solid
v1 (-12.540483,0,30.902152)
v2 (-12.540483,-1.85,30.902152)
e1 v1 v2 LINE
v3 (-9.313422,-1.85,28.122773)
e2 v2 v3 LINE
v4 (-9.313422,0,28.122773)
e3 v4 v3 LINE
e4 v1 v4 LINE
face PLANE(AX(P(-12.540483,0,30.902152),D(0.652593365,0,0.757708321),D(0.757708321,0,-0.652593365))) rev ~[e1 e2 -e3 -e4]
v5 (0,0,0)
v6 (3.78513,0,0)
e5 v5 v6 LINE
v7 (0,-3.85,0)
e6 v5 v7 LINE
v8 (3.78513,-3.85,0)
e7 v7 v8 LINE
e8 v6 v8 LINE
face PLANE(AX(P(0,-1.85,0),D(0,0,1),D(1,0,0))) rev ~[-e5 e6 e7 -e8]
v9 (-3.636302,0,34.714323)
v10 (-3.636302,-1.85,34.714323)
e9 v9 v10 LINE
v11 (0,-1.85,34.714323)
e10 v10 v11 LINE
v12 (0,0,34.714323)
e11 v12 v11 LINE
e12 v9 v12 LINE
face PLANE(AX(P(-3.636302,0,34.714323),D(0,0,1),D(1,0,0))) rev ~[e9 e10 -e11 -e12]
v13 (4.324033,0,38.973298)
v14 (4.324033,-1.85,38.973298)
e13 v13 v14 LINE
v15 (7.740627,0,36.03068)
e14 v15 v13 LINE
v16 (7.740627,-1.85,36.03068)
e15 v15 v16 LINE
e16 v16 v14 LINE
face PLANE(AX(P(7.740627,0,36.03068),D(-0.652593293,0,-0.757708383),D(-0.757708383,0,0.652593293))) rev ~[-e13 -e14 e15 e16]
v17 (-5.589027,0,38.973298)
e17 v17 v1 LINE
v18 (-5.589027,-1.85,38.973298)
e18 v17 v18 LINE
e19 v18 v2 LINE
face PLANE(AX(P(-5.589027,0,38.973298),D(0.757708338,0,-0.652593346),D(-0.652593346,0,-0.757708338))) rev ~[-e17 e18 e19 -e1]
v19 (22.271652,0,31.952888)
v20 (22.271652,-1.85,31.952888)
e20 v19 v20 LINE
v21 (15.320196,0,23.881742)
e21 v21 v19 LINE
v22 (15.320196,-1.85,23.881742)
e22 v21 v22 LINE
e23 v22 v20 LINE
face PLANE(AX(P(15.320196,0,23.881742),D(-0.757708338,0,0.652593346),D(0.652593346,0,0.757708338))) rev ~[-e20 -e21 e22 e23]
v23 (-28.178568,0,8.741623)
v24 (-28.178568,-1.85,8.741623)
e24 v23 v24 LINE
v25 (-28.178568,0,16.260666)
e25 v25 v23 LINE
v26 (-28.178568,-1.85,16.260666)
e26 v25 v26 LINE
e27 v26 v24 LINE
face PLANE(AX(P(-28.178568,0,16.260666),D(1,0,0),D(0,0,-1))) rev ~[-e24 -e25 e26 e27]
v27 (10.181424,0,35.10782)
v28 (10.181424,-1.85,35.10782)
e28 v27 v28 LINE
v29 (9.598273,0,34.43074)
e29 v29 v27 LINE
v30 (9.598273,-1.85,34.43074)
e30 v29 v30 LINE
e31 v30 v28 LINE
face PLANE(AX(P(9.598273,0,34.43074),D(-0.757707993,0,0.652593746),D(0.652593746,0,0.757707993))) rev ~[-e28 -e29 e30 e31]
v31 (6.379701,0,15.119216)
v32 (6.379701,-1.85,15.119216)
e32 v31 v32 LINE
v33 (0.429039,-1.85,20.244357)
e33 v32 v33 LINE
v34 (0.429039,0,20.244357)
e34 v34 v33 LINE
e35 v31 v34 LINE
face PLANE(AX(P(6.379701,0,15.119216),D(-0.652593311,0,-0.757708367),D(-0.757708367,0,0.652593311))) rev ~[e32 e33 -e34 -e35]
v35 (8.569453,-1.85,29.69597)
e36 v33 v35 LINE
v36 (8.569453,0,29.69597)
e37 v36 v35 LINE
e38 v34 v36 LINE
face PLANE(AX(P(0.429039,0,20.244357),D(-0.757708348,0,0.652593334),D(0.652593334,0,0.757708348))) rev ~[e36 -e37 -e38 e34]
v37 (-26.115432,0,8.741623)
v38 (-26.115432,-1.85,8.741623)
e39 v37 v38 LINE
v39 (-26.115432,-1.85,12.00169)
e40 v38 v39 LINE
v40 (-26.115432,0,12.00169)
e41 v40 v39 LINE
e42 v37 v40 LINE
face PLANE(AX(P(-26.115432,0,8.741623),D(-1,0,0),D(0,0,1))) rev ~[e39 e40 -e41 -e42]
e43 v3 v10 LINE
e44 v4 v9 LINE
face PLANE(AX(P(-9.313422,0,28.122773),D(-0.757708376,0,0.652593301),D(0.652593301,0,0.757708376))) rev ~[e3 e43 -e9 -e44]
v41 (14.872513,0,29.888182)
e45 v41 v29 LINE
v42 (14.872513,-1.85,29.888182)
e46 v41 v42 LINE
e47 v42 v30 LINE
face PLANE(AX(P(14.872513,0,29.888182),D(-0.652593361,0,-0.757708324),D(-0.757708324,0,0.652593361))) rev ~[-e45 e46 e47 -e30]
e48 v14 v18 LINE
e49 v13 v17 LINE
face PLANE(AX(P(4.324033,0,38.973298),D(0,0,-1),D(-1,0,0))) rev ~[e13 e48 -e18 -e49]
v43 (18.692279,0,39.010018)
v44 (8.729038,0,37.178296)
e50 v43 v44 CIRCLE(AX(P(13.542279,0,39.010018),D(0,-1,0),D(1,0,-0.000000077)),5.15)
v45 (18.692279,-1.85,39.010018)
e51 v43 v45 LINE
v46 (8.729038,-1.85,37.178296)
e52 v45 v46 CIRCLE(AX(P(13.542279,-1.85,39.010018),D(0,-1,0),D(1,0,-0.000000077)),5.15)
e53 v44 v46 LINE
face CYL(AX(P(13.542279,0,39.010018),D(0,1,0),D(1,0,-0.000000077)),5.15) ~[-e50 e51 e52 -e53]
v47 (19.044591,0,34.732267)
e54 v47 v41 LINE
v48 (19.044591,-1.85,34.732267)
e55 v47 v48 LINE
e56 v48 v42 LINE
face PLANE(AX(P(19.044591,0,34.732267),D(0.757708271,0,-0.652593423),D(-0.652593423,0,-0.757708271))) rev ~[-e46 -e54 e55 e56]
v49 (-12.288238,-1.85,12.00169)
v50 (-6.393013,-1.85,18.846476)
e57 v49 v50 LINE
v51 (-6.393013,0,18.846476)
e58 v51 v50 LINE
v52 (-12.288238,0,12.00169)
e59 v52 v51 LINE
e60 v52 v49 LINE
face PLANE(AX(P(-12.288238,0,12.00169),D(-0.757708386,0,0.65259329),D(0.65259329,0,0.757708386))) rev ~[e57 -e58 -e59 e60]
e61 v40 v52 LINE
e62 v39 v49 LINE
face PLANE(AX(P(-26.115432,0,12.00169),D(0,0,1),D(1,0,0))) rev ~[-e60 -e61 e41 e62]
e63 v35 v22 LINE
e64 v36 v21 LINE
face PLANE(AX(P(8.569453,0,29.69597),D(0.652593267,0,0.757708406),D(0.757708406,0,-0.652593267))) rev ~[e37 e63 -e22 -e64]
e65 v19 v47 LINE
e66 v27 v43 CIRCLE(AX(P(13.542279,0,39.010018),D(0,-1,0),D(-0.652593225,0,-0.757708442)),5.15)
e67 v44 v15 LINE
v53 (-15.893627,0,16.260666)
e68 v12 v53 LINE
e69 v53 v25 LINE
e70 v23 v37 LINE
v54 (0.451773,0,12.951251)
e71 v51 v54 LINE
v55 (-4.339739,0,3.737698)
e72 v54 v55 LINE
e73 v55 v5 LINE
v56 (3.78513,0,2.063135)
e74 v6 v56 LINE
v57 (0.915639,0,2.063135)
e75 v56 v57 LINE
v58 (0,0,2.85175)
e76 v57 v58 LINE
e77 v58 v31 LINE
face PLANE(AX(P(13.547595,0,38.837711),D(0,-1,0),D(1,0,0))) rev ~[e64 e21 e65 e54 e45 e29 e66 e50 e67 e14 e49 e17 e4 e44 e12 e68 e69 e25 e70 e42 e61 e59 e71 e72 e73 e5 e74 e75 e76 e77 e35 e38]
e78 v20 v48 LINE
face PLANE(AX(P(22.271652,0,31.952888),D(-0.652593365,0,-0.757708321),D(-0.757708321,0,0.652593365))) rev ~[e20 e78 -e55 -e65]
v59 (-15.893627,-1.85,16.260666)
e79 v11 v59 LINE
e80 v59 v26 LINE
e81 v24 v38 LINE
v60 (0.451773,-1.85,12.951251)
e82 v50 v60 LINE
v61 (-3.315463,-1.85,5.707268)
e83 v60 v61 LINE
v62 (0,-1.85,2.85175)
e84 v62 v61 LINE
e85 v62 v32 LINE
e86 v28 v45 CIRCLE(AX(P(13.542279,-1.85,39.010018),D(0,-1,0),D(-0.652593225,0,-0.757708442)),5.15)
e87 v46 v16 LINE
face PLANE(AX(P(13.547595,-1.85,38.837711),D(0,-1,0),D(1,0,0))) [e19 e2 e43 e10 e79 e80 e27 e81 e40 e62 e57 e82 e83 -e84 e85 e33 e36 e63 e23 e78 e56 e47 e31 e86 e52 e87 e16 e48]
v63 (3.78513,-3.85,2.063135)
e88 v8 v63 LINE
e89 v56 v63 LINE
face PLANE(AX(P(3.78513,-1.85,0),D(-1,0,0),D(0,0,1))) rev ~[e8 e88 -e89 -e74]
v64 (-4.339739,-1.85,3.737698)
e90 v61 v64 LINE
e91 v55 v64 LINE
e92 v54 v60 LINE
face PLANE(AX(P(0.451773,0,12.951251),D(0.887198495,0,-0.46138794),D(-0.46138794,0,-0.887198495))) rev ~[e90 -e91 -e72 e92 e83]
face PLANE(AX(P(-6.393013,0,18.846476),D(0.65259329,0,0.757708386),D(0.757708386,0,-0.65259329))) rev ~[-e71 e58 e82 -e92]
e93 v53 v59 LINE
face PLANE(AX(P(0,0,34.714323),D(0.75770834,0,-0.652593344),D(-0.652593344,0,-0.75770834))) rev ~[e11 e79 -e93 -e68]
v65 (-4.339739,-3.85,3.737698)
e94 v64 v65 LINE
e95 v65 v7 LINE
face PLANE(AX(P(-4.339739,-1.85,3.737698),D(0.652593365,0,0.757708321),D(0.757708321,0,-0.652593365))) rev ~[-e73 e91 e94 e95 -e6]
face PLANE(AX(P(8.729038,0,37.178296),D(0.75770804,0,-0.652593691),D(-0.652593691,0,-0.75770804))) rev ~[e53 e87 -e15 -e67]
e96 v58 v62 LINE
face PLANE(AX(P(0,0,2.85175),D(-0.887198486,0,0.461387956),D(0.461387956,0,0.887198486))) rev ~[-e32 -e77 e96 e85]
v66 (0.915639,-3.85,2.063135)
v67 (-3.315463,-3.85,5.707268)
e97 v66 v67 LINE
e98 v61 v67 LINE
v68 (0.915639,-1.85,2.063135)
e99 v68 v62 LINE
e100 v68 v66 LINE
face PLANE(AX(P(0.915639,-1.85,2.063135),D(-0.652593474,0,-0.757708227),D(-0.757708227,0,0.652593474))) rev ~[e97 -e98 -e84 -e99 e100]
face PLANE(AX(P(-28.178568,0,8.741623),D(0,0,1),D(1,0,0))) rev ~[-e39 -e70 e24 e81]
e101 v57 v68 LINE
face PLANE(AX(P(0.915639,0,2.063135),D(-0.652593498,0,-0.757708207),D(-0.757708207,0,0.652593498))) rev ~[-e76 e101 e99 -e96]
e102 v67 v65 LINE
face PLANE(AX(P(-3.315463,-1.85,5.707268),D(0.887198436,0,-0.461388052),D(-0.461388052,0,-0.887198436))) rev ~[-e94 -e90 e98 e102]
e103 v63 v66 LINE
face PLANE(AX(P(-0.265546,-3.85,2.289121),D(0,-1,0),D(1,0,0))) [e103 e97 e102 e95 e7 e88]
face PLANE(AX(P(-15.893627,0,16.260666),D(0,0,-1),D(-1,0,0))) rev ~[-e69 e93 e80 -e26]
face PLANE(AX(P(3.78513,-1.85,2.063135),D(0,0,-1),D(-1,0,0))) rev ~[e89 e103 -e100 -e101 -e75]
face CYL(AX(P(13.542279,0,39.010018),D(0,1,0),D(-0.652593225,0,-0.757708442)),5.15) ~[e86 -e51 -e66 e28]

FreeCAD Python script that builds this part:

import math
import FreeCAD as App
import Part
import Sketcher

V = App.Vector


def add_polygon(sketch, points):
    """Adds a closed chain of lines whose ends are joined by coincident constraints."""
    first, n = sketch.GeometryCount, len(points)
    for a, b in zip(points, points[1:] + points[:1]):
        sketch.addGeometry(Part.LineSegment(App.Vector(*a, 0), App.Vector(*b, 0)), False)
    for i in range(n):
        sketch.addConstraint(Sketcher.Constraint("Coincident", first + i, 2, first + (i + 1) % n, 1))

doc = App.newDocument("Part")
body = doc.addObject("PartDesign::Body", "Body")

# Sketch on XZ plane
sketch1 = doc.addObject("Sketcher::SketchObject", "Sketch")
body.addObject(sketch1)
sketch1.AttachmentSupport = (doc.XZ_Plane, [""])
sketch1.MapMode = "FlatFace"
sketch1.addGeometry(Part.ArcOfCircle(Part.Circle(V(13.5, 39, 0), V(0, 0, 1), 5.1), math.radians(-131), math.radians(0)), False)
sketch1.addGeometry(Part.ArcOfCircle(Part.Circle(V(13.5, 39, 0), V(0, 0, 1), 5.1), math.radians(0), math.radians(201)), False)
sketch1.addGeometry(Part.LineSegment(V(8.7, 37.2, 0), V(7.7, 36, 0)), False)
sketch1.addGeometry(Part.LineSegment(V(7.7, 36, 0), V(4.3, 39, 0)), False)
sketch1.addGeometry(Part.LineSegment(V(4.3, 39, 0), V(-5.6, 39, 0)), False)
sketch1.addGeometry(Part.LineSegment(V(-5.6, 39, 0), V(-12.5, 30.9, 0)), False)
sketch1.addGeometry(Part.LineSegment(V(-12.5, 30.9, 0), V(-9.3, 28.1, 0)), False)
sketch1.addGeometry(Part.LineSegment(V(-9.3, 28.1, 0), V(-3.6, 34.7, 0)), False)
sketch1.addGeometry(Part.LineSegment(V(-3.6, 34.7, 0), V(0, 34.7, 0)), False)
sketch1.addGeometry(Part.LineSegment(V(0, 34.7, 0), V(-15.9, 16.3, 0)), False)
sketch1.addGeometry(Part.LineSegment(V(-15.9, 16.3, 0), V(-28.2, 16.3, 0)), False)
sketch1.addGeometry(Part.LineSegment(V(-28.2, 16.3, 0), V(-28.2, 8.7, 0)), False)
sketch1.addGeometry(Part.LineSegment(V(-28.2, 8.7, 0), V(-26.1, 8.7, 0)), False)
sketch1.addGeometry(Part.LineSegment(V(-26.1, 8.7, 0), V(-26.1, 12, 0)), False)
sketch1.addGeometry(Part.LineSegment(V(-26.1, 12, 0), V(-12.3, 12, 0)), False)
sketch1.addGeometry(Part.LineSegment(V(-12.3, 12, 0), V(-6.4, 18.8, 0)), False)
sketch1.addGeometry(Part.LineSegment(V(-6.4, 18.8, 0), V(0.5, 13, 0)), False)
sketch1.addGeometry(Part.LineSegment(V(0.5, 13, 0), V(-4.3, 3.7, 0)), False)
sketch1.addGeometry(Part.LineSegment(V(-4.3, 3.7, 0), V(0, 0, 0)), False)
sketch1.addGeometry(Part.LineSegment(V(0, 0, 0), V(3.8, 0, 0)), False)
sketch1.addGeometry(Part.LineSegment(V(3.8, 0, 0), V(3.8, 2.1, 0)), False)
sketch1.addGeometry(Part.LineSegment(V(3.8, 2.1, 0), V(0.9, 2.1, 0)), False)
sketch1.addGeometry(Part.LineSegment(V(0.9, 2.1, 0), V(0, 2.9, 0)), False)
sketch1.addGeometry(Part.LineSegment(V(0, 2.9, 0), V(6.4, 15.1, 0)), False)
sketch1.addGeometry(Part.LineSegment(V(6.4, 15.1, 0), V(0.4, 20.2, 0)), False)
sketch1.addGeometry(Part.LineSegment(V(0.4, 20.2, 0), V(8.6, 29.7, 0)), False)
sketch1.addGeometry(Part.LineSegment(V(8.6, 29.7, 0), V(15.3, 23.9, 0)), False)
sketch1.addGeometry(Part.LineSegment(V(15.3, 23.9, 0), V(22.3, 32, 0)), False)
sketch1.addGeometry(Part.LineSegment(V(22.3, 32, 0), V(19, 34.7, 0)), False)
sketch1.addGeometry(Part.LineSegment(V(19, 34.7, 0), V(14.9, 29.9, 0)), False)
sketch1.addGeometry(Part.LineSegment(V(14.9, 29.9, 0), V(9.6, 34.4, 0)), False)
sketch1.addGeometry(Part.LineSegment(V(9.6, 34.4, 0), V(10.2, 35.1, 0)), False)
sketch1.addConstraint(Sketcher.Constraint("Tangent", 0, 2, 1, 1))
sketch1.addConstraint(Sketcher.Constraint("Coincident", 1, 2, 2, 1))
sketch1.addConstraint(Sketcher.Constraint("Coincident", 2, 2, 3, 1))
sketch1.addConstraint(Sketcher.Constraint("Coincident", 3, 2, 4, 1))
sketch1.addConstraint(Sketcher.Constraint("Coincident", 4, 2, 5, 1))
sketch1.addConstraint(Sketcher.Constraint("Coincident", 5, 2, 6, 1))
sketch1.addConstraint(Sketcher.Constraint("Coincident", 6, 2, 7, 1))
sketch1.addConstraint(Sketcher.Constraint("Coincident", 7, 2, 8, 1))
sketch1.addConstraint(Sketcher.Constraint("Coincident", 8, 2, 9, 1))
sketch1.addConstraint(Sketcher.Constraint("Coincident", 9, 2, 10, 1))
sketch1.addConstraint(Sketcher.Constraint("Coincident", 10, 2, 11, 1))
sketch1.addConstraint(Sketcher.Constraint("Coincident", 11, 2, 12, 1))
sketch1.addConstraint(Sketcher.Constraint("Coincident", 12, 2, 13, 1))
sketch1.addConstraint(Sketcher.Constraint("Coincident", 13, 2, 14, 1))
sketch1.addConstraint(Sketcher.Constraint("Coincident", 14, 2, 15, 1))
sketch1.addConstraint(Sketcher.Constraint("Coincident", 15, 2, 16, 1))
sketch1.addConstraint(Sketcher.Constraint("Coincident", 16, 2, 17, 1))
sketch1.addConstraint(Sketcher.Constraint("Coincident", 17, 2, 18, 1))
sketch1.addConstraint(Sketcher.Constraint("Coincident", 18, 2, 19, 1))
sketch1.addConstraint(Sketcher.Constraint("Coincident", 19, 2, 20, 1))
sketch1.addConstraint(Sketcher.Constraint("Coincident", 20, 2, 21, 1))
sketch1.addConstraint(Sketcher.Constraint("Coincident", 21, 2, 22, 1))
sketch1.addConstraint(Sketcher.Constraint("Coincident", 22, 2, 23, 1))
sketch1.addConstraint(Sketcher.Constraint("Coincident", 23, 2, 24, 1))
sketch1.addConstraint(Sketcher.Constraint("Coincident", 24, 2, 25, 1))
sketch1.addConstraint(Sketcher.Constraint("Coincident", 25, 2, 26, 1))
sketch1.addConstraint(Sketcher.Constraint("Coincident", 26, 2, 27, 1))
sketch1.addConstraint(Sketcher.Constraint("Coincident", 27, 2, 28, 1))
sketch1.addConstraint(Sketcher.Constraint("Coincident", 28, 2, 29, 1))
sketch1.addConstraint(Sketcher.Constraint("Coincident", 29, 2, 30, 1))
sketch1.addConstraint(Sketcher.Constraint("Coincident", 30, 2, 31, 1))
sketch1.addConstraint(Sketcher.Constraint("Coincident", 31, 2, 0, 1))
sketch1.addConstraint(Sketcher.Constraint("Horizontal", 4))
sketch1.addConstraint(Sketcher.Constraint("Horizontal", 8))
sketch1.addConstraint(Sketcher.Constraint("Horizontal", 10))
sketch1.addConstraint(Sketcher.Constraint("Vertical", 11))
sketch1.addConstraint(Sketcher.Constraint("Horizontal", 12))
sketch1.addConstraint(Sketcher.Constraint("Vertical", 13))
sketch1.addConstraint(Sketcher.Constraint("Horizontal", 14))
sketch1.addConstraint(Sketcher.Constraint("Horizontal", 19))
sketch1.addConstraint(Sketcher.Constraint("Vertical", 20))
sketch1.addConstraint(Sketcher.Constraint("Horizontal", 21))
sketch1.addConstraint(Sketcher.Constraint("Coincident", 18, 2, -1, 1))
sketch1.addConstraint(Sketcher.Constraint("Equal", 0, 1))
sketch1.addConstraint(Sketcher.Constraint("PointOnObject", 8, 2, -2))
sketch1.addConstraint(Sketcher.Constraint("PointOnObject", 22, 2, -2))
sketch1.addConstraint(Sketcher.Constraint("Perpendicular", 2, 3))
sketch1.addConstraint(Sketcher.Constraint("Perpendicular", 3, 5))
sketch1.addConstraint(Sketcher.Constraint("Perpendicular", 5, 6))
sketch1.addConstraint(Sketcher.Constraint("Perpendicular", 6, 7))
sketch1.addConstraint(Sketcher.Constraint("Parallel", 7, 9))
sketch1.addConstraint(Sketcher.Constraint("Parallel", 9, 15))
sketch1.addConstraint(Sketcher.Constraint("Perpendicular", 15, 16))
sketch1.addConstraint(Sketcher.Constraint("Parallel", 16, 18))
sketch1.addConstraint(Sketcher.Constraint("Parallel", 18, 22))
sketch1.addConstraint(Sketcher.Constraint("Parallel", 17, 23))
sketch1.addConstraint(Sketcher.Constraint("Parallel", 22, 24))
sketch1.addConstraint(Sketcher.Constraint("Perpendicular", 24, 25))
sketch1.addConstraint(Sketcher.Constraint("Perpendicular", 25, 26))
sketch1.addConstraint(Sketcher.Constraint("Perpendicular", 26, 27))
sketch1.addConstraint(Sketcher.Constraint("Perpendicular", 27, 28))
sketch1.addConstraint(Sketcher.Constraint("Perpendicular", 28, 29))
sketch1.addConstraint(Sketcher.Constraint("Perpendicular", 29, 30))
sketch1.addConstraint(Sketcher.Constraint("Perpendicular", 30, 31))
sketch1.addConstraint(Sketcher.Constraint("Horizontal", 1, 3, 0, 2))
sketch1.addConstraint(Sketcher.Constraint("Equal", 12, 20))
sketch1.addConstraint(Sketcher.Constraint("Equal", 15, 16))
sketch1.addConstraint(Sketcher.Constraint("Equal", 5, 27))
sketch1.addConstraint(Sketcher.Constraint("Equal", 6, 28))
sketch1.addConstraint(Sketcher.Constraint("Radius", 0, 5.15))
sketch1.addConstraint(Sketcher.Constraint("Distance", 24, 7.853499))
sketch1.addConstraint(Sketcher.Constraint("DistanceX", 4, 2, 4, 1, 9.91306))
sketch1.addConstraint(Sketcher.Constraint("DistanceX", 10, 2, 10, 1, 12.284941))
sketch1.addConstraint(Sketcher.Constraint("DistanceX", 19, 1, 19, 2, 3.78513))
sketch1.addConstraint(Sketcher.Constraint("DistanceX", 21, 2, 21, 1, 2.869491))
sketch1.addConstraint(Sketcher.Constraint("DistanceY", -1, 1, 17, 2, 3.737698))
sketch1.addConstraint(Sketcher.Constraint("DistanceX", -1, 1, 23, 2, 6.379701))
sketch1.addConstraint(Sketcher.Constraint("DistanceX", 9, 2, 4, 2, 10.3046))
sketch1.addConstraint(Sketcher.Constraint("DistanceY", 11, 2, 7, 2, 25.9727))
sketch1.addConstraint(Sketcher.Constraint("DistanceX", 9, 2, 16, 2, 16.3454))
sketch1.addConstraint(Sketcher.Constraint("DistanceX", 14, 2, 17, 2, 7.948499))
sketch1.addConstraint(Sketcher.Constraint("DistanceX", 25, 2, 27, 2, 13.702199))
sketch1.addConstraint(Sketcher.Constraint("DistanceY", 31, 2, 0, 3, 3.902198))
sketch1.addConstraint(Sketcher.Constraint("Distance", 2, 1.514589))
sketch1.addConstraint(Sketcher.Constraint("Distance", 5, 10.652049))
sketch1.addConstraint(Sketcher.Constraint("Distance", 26, 8.909421))
sketch1.addConstraint(Sketcher.Constraint("Distance", 30, 6.960779))
sketch1.addConstraint(Sketcher.Constraint("Distance", 31, 0.89359))
sketch1.addConstraint(Sketcher.Constraint("DistanceX", 8, 1, 8, 2, 3.636302))
sketch1.addConstraint(Sketcher.Constraint("DistanceX", 12, 1, 12, 2, 2.063136))
sketch1.addConstraint(Sketcher.Constraint("DistanceX", 14, 1, 14, 2, 13.827194))
sketch1.addConstraint(Sketcher.Constraint("DistanceY", 13, 1, 13, 2, 3.260067))
sketch1.addConstraint(Sketcher.Constraint("DistanceX", -1, 1, 0, 3, 13.542279))
sketch1.addConstraint(Sketcher.Constraint("DistanceY", -1, 1, 0, 3, 39.010018))
sketch1.addConstraint(Sketcher.Constraint("DistanceY", -1, 1, 2, 2, 36.03068))
sketch1.addConstraint(Sketcher.Constraint("DistanceY", -1, 1, 25, 2, 29.69597))
pad1 = doc.addObject("PartDesign::Pad", "Pad")
body.addObject(pad1)
pad1.Profile = sketch1
pad1.Length = 1.85

# Sketch on XZ plane
sketch2 = doc.addObject("Sketcher::SketchObject", "Sketch001")
body.addObject(sketch2)
sketch2.AttachmentSupport = (doc.XZ_Plane, [""])
sketch2.MapMode = "FlatFace"
sketch2.AttachmentOffset = App.Placement(V(0, 0, 1.85), App.Rotation())
add_polygon(sketch2, [(-4.3, 3.7), (0, 0), (3.8, 0), (3.8, 2.1), (0.9, 2.1), (-3.3, 5.7)])  # lines 0-5
sketch2.addConstraint(Sketcher.Constraint("Horizontal", 1))
sketch2.addConstraint(Sketcher.Constraint("Vertical", 2))
sketch2.addConstraint(Sketcher.Constraint("Horizontal", 3))
sketch2.addConstraint(Sketcher.Constraint("Coincident", 0, 2, -1, 1))
sketch2.addConstraint(Sketcher.Constraint("Parallel", 0, 4))
sketch2.addConstraint(Sketcher.Constraint("DistanceX", 1, 1, 1, 2, 3.78513))
sketch2.addConstraint(Sketcher.Constraint("DistanceX", 3, 2, 3, 1, 2.869491))
sketch2.addConstraint(Sketcher.Constraint("DistanceY", -1, 1, 5, 2, 3.737698))
sketch2.addConstraint(Sketcher.Constraint("Distance", 4, 5.584078))
sketch2.addConstraint(Sketcher.Constraint("Distance", 5, 2.219988))
sketch2.addConstraint(Sketcher.Constraint("DistanceY", 2, 1, 2, 2, 2.063135))
pad2 = doc.addObject("PartDesign::Pad", "Pad001")
body.addObject(pad2)
pad2.Profile = sketch2
pad2.Length = 2

doc.recompute()
